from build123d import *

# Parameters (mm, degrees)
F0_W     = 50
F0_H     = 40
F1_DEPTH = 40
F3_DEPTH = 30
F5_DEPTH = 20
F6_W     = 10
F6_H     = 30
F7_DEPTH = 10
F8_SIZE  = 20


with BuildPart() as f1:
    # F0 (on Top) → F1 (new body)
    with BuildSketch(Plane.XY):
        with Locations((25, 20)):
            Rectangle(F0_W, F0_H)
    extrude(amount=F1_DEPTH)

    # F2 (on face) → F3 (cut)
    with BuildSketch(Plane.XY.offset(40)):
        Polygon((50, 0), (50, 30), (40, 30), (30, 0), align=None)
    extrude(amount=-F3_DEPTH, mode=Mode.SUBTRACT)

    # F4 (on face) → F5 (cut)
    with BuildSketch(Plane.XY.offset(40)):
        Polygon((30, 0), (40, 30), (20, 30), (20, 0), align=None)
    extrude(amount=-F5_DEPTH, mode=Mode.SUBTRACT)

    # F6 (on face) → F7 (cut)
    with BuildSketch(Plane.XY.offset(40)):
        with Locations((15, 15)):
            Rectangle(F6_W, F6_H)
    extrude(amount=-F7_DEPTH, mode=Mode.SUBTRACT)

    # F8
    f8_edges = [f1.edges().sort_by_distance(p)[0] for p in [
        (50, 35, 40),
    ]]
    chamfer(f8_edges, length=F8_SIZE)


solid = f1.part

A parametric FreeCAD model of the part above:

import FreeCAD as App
import Part
import Sketcher

V = App.Vector
Q = App.Units.Quantity


def edges_at(feature, points):
    """Names of the edges that pass closest to the given points."""
    edges = feature.Shape.Edges
    near = lambda p: min(range(len(edges)), key=lambda i: edges[i].distToShape(Part.Vertex(*p))[0])
    return sorted({f"Edge{near(p) + 1}" for p in points})

doc = App.newDocument("Part")
body = doc.addObject("PartDesign::Body", "Body")

sketch1 = body.newObject("Sketcher::SketchObject", "Sketch")
sketch1.AttachmentSupport = (doc.getObject("XY_Plane"), [""])
sketch1.MapMode = "FlatFace"
sketch1.addGeometry([
    Part.LineSegment(V(0, 40, 0), V(0, 0, 0)),
    Part.LineSegment(V(0, 0, 0), V(50, 0, 0)),
    Part.LineSegment(V(50, 0, 0), V(50, 40, 0)),
    Part.LineSegment(V(50, 40, 0), V(0, 40, 0)),
], False)
sketch1.addConstraint([
    Sketcher.Constraint("Coincident", 0, 2, 1, 1),
    Sketcher.Constraint("Coincident", 1, 2, 2, 1),
    Sketcher.Constraint("Coincident", 2, 2, 3, 1),
    Sketcher.Constraint("Coincident", 3, 2, 0, 1),
    Sketcher.Constraint("Vertical", 0),
    Sketcher.Constraint("Horizontal", 1),
    Sketcher.Constraint("Vertical", 2),
    Sketcher.Constraint("Horizontal", 3),
    Sketcher.Constraint("Coincident", 0, 2, -1, 1),
    Sketcher.Constraint("DistanceX", 1, 1, 1, 2, Q("50 mm")),
    Sketcher.Constraint("DistanceY", 0, 2, 0, 1, Q("40 mm")),
])
pad1 = body.newObject("PartDesign::Pad", "Pad")
pad1.Profile = sketch1
pad1.Length = 40

sketch2 = body.newObject("Sketcher::SketchObject", "Sketch001")
sketch2.AttachmentSupport = (doc.getObject("XY_Plane"), [""])
sketch2.MapMode = "FlatFace"
sketch2.AttachmentOffset = App.Placement(V(0, 0, 40), App.Rotation())
sketch2.addGeometry([
    Part.LineSegment(V(50, 0, 0), V(50, 30, 0)),
    Part.LineSegment(V(50, 30, 0), V(40, 30, 0)),
    Part.LineSegment(V(40, 30, 0), V(30, 0, 0)),
    Part.LineSegment(V(30, 0, 0), V(50, 0, 0)),
], False)
sketch2.addConstraint([
    Sketcher.Constraint("Coincident", 0, 2, 1, 1),
    Sketcher.Constraint("Coincident", 1, 2, 2, 1),
    Sketcher.Constraint("Coincident", 2, 2, 3, 1),
    Sketcher.Constraint("Coincident", 3, 2, 0, 1),
    Sketcher.Constraint("Vertical", 0),
    Sketcher.Constraint("Horizontal", 1),
    Sketcher.Constraint("Horizontal", 3),
    Sketcher.Constraint("PointOnObject", 2, 2, -1),
    Sketcher.Constraint("DistanceX", 1, 2, 1, 1, Q("10 mm")),
    Sketcher.Constraint("DistanceX", 3, 1, 3, 2, Q("20 mm")),
    Sketcher.Constraint("DistanceY", 0, 1, 0, 2, Q("30 mm")),
    Sketcher.Constraint("DistanceX", -1, 1, 0, 2, Q("50 mm")),
])
pocket1 = body.newObject("PartDesign::Pocket", "Pocket")
pocket1.Profile = sketch2
pocket1.Length = 30

sketch3 = body.newObject("Sketcher::SketchObject", "Sketch002")
sketch3.AttachmentSupport = (doc.getObject("XY_Plane"), [""])
sketch3.MapMode = "FlatFace"
sketch3.AttachmentOffset = App.Placement(V(0, 0, 40), App.Rotation())
sketch3.addGeometry([
    Part.LineSegment(V(30, 0, 0), V(40, 30, 0)),
    Part.LineSegment(V(40, 30, 0), V(20, 30, 0)),
    Part.LineSegment(V(20, 30, 0), V(20, 0, 0)),
    Part.LineSegment(V(20, 0, 0), V(30, 0, 0)),
], False)
sketch3.addConstraint([
    Sketcher.Constraint("Coincident", 0, 2, 1, 1),
    Sketcher.Constraint("Coincident", 1, 2, 2, 1),
    Sketcher.Constraint("Coincident", 2, 2, 3, 1),
    Sketcher.Constraint("Coincident", 3, 2, 0, 1),
    Sketcher.Constraint("Horizontal", 1),
    Sketcher.Constraint("Vertical", 2),
    Sketcher.Constraint("Horizontal", 3),
    Sketcher.Constraint("PointOnObject", 2, 2, -1),
    Sketcher.Constraint("DistanceX", 1, 2, 1, 1, Q("20 mm")),
    Sketcher.Constraint("DistanceX", 3, 1, 3, 2, Q("10 mm")),
    Sketcher.Constraint("DistanceY", 2, 2, 2, 1, Q("30 mm")),
    Sketcher.Constraint("DistanceX", -1, 1, 0, 2, Q("40 mm")),
])
pocket2 = body.newObject("PartDesign::Pocket", "Pocket001")
pocket2.Profile = sketch3
pocket2.Length = 20

sketch4 = body.newObject("Sketcher::SketchObject", "Sketch003")
sketch4.AttachmentSupport = (doc.getObject("XY_Plane"), [""])
sketch4.MapMode = "FlatFace"
sketch4.AttachmentOffset = App.Placement(V(0, 0, 40), App.Rotation())
sketch4.addGeometry([
    Part.LineSegment(V(10, 30, 0), V(10, 0, 0)),
    Part.LineSegment(V(10, 0, 0), V(20, 0, 0)),
    Part.LineSegment(V(20, 0, 0), V(20, 30, 0)),
    Part.LineSegment(V(20, 30, 0), V(10, 30, 0)),
], False)
sketch4.addConstraint([
    Sketcher.Constraint("Coincident", 0, 2, 1, 1),
    Sketcher.Constraint("Coincident", 1, 2, 2, 1),
    Sketcher.Constraint("Coincident", 2, 2, 3, 1),
    Sketcher.Constraint("Coincident", 3, 2, 0, 1),
    Sketcher.Constraint("Vertical", 0),
    Sketcher.Constraint("Horizontal", 1),
    Sketcher.Constraint("Vertical", 2),
    Sketcher.Constraint("Horizontal", 3),
    Sketcher.Constraint("PointOnObject", 0, 2, -1),
    Sketcher.Constraint("DistanceX", 1, 1, 1, 2, Q("10 mm")),
    Sketcher.Constraint("DistanceY", 0, 2, 0, 1, Q("30 mm")),
    Sketcher.Constraint("DistanceX", -1, 1, 0, 2, Q("10 mm")),
])
pocket3 = body.newObject("PartDesign::Pocket", "Pocket002")
pocket3.Profile = sketch4
pocket3.Length = 10
doc.recompute()

chamfer = body.newObject("PartDesign::Chamfer", "Chamfer")
chamfer.Base = (pocket3, edges_at(pocket3, [(50, 35, 40)]))
chamfer.Size = 20

doc.recompute()
